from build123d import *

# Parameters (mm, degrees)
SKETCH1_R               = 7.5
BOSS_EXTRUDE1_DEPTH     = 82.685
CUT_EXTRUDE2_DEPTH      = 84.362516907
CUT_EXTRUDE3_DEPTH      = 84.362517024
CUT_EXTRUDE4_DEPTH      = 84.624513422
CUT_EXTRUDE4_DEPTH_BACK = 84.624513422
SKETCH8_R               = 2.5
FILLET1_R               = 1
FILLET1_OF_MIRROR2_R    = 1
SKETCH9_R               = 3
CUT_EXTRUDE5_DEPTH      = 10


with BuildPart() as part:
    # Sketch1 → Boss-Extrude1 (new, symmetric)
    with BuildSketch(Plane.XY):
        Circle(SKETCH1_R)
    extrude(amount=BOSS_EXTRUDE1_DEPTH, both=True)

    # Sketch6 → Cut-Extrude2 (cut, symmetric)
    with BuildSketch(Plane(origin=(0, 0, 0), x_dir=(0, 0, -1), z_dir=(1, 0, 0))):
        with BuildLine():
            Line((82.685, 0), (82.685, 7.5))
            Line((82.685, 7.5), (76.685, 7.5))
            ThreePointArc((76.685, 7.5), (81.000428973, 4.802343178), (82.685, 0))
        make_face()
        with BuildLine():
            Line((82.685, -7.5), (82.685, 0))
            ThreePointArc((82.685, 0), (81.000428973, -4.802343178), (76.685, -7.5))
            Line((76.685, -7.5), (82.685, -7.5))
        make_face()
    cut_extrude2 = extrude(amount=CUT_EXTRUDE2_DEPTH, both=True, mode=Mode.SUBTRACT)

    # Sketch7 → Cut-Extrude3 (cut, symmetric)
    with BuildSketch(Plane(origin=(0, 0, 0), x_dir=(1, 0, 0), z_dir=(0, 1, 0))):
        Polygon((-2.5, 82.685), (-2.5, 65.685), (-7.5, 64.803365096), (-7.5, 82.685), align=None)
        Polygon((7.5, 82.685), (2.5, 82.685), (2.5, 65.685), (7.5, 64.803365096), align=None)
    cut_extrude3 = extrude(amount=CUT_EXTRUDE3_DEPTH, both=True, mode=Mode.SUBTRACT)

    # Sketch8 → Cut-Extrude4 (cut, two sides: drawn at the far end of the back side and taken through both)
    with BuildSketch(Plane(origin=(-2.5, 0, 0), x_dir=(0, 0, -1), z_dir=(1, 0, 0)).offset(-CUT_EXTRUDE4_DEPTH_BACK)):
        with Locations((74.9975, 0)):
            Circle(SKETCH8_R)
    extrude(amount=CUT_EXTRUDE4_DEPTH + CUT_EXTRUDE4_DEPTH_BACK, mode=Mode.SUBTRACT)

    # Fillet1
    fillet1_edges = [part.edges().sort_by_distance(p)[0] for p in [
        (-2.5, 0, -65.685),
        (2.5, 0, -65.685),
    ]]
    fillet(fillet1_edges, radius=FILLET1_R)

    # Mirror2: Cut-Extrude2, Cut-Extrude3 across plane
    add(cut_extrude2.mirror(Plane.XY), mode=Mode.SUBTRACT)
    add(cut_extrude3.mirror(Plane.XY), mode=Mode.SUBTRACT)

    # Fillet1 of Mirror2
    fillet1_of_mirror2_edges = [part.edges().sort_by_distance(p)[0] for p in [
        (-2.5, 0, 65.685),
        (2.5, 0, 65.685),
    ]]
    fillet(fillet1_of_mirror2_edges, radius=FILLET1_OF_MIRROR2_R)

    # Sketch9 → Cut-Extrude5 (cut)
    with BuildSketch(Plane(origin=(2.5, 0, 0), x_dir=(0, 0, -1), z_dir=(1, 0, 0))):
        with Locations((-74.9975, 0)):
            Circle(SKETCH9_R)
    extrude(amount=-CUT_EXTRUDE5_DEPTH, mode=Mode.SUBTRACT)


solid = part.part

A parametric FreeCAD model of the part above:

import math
import FreeCAD as App
import Part
import Sketcher
from FreeCAD import Vector
Q = App.Units.Quantity


def edges_at(feature, points):
    """Names of the edges that pass closest to the given points."""
    edges = feature.Shape.Edges
    near = lambda p: min(range(len(edges)), key=lambda i: edges[i].distToShape(Part.Vertex(*p))[0])
    return sorted({f"Edge{near(p) + 1}" for p in points})

doc = App.newDocument("Part")
body = doc.addObject("PartDesign::Body", "Body")

sketch1 = body.newObject("Sketcher::SketchObject", "Sketch")
sketch1.AttachmentSupport = (doc.getObject("XY_Plane"), [""])
sketch1.MapMode = "FlatFace"
sketch1.addGeometry(Part.Circle(Vector(0, 0, 0), Vector(0, 0, 1), 7.5), False)
sketch1.addConstraint([
    Sketcher.Constraint("Coincident", 0, 3, -1, 1),
    Sketcher.Constraint("Diameter", 0, 15.0),
])
pad1 = body.newObject("PartDesign::Pad", "Pad")
pad1.Profile = sketch1
pad1.Length = 165.37
pad1.Midplane = True

sketch2 = body.newObject("Sketcher::SketchObject", "Sketch001")
sketch2.AttachmentSupport = (doc.getObject("YZ_Plane"), [""])
sketch2.MapMode = "FlatFace"
sketch2.addGeometry([
    Part.LineSegment(Vector(0, -82.685, 0), Vector(7.5, -82.685, 0)),
    Part.LineSegment(Vector(7.5, -82.685, 0), Vector(7.5, -76.685, 0)),
    Part.ArcOfCircle(Part.Circle(Vector(0, -74.9975, 0), Vector(0, 0, 1), 7.6875), math.radians(-90), math.radians(-12.680383)),
    Part.LineSegment(Vector(-7.5, -82.685, 0), Vector(0, -82.685, 0)),
    Part.ArcOfCircle(Part.Circle(Vector(0, -74.9975, 0), Vector(0, 0, 1), 7.6875), math.radians(-167.319617), math.radians(-90)),
    Part.LineSegment(Vector(-7.5, -76.685, 0), Vector(-7.5, -82.685, 0)),
], False)
sketch2.addConstraint([
    Sketcher.Constraint("Coincident", 0, 2, 1, 1),
    Sketcher.Constraint("Coincident", 1, 2, 2, 2),
    Sketcher.Constraint("Tangent", 2, 1, 0, 1),
    Sketcher.Constraint("Tangent", 3, 2, 4, 2),
    Sketcher.Constraint("Coincident", 4, 1, 5, 1),
    Sketcher.Constraint("Coincident", 5, 2, 3, 1),
    Sketcher.Constraint("Horizontal", 0),
    Sketcher.Constraint("Vertical", 1),
    Sketcher.Constraint("Horizontal", 3),
    Sketcher.Constraint("Vertical", 5),
    Sketcher.Constraint("Coincident", 4, 3, 2, 3),
    Sketcher.Constraint("Equal", 2, 4),
    Sketcher.Constraint("Symmetric", 1, 2, 4, 1, -2),
    Sketcher.Constraint("DistanceY", 1, 1, 1, 2, 6.0),
    Sketcher.Constraint("DistanceX", 0, 1, 0, 2, 7.5),
    Sketcher.Constraint("DistanceY", 0, 2, -1, 1, 82.685),
])
pocket1 = body.newObject("PartDesign::Pocket", "Pocket")
pocket1.Profile = sketch2
pocket1.Length = 168.725034
pocket1.Midplane = True

sketch3 = body.newObject("Sketcher::SketchObject", "Sketch002")
sketch3.AttachmentSupport = (doc.getObject("XZ_Plane"), [""])
sketch3.MapMode = "FlatFace"
sketch3.addGeometry([
    Part.LineSegment(Vector(-2.5, -65.685, 0), Vector(-2.5, -82.685, 0)),
    Part.LineSegment(Vector(-2.5, -82.685, 0), Vector(-7.5, -82.685, 0)),
    Part.LineSegment(Vector(-7.5, -82.685, 0), Vector(-7.5, -64.803365, 0)),
    Part.LineSegment(Vector(-7.5, -64.803365, 0), Vector(-2.5, -65.685, 0)),
    Part.LineSegment(Vector(7.5, -82.685, 0), Vector(2.5, -82.685, 0)),
    Part.LineSegment(Vector(2.5, -82.685, 0), Vector(2.5, -65.685, 0)),
    Part.LineSegment(Vector(2.5, -65.685, 0), Vector(7.5, -64.803365, 0)),
    Part.LineSegment(Vector(7.5, -64.803365, 0), Vector(7.5, -82.685, 0)),
], False)
sketch3.addConstraint([
    Sketcher.Constraint("Coincident", 0, 2, 1, 1),
    Sketcher.Constraint("Coincident", 1, 2, 2, 1),
    Sketcher.Constraint("Coincident", 2, 2, 3, 1),
    Sketcher.Constraint("Coincident", 3, 2, 0, 1),
    Sketcher.Constraint("Coincident", 4, 2, 5, 1),
    Sketcher.Constraint("Coincident", 5, 2, 6, 1),
    Sketcher.Constraint("Coincident", 6, 2, 7, 1),
    Sketcher.Constraint("Coincident", 7, 2, 4, 1),
    Sketcher.Constraint("Vertical", 0),
    Sketcher.Constraint("Horizontal", 1),
    Sketcher.Constraint("Vertical", 2),
    Sketcher.Constraint("Horizontal", 4),
    Sketcher.Constraint("Vertical", 5),
    Sketcher.Constraint("Vertical", 7),
    Sketcher.Constraint("Symmetric", 0, 2, 4, 2, -2),
    Sketcher.Constraint("Symmetric", 2, 2, 6, 2, -2),
    Sketcher.Constraint("Horizontal", 3, 2, 5, 2),
    Sketcher.Constraint("DistanceX", 1, 2, 1, 1, 5.0),
    Sketcher.Constraint("DistanceY", 0, 2, 0, 1, 17.0),
    Sketcher.Constraint("Angle", 3, Q("-10 deg")),
    Sketcher.Constraint("DistanceX", 0, 2, 4, 2, 5.0),
    Sketcher.Constraint("DistanceY", 0, 2, -1, 1, 82.685),
])
pocket2 = body.newObject("PartDesign::Pocket", "Pocket001")
pocket2.Profile = sketch3
pocket2.Length = 168.725034
pocket2.Midplane = True

sketch4 = body.newObject("Sketcher::SketchObject", "Sketch003")
sketch4.AttachmentSupport = (doc.getObject("YZ_Plane"), [""])
sketch4.MapMode = "FlatFace"
sketch4.AttachmentOffset = App.Placement(Vector(0, 0, -2.5), App.Rotation())
sketch4.addGeometry(Part.Circle(Vector(0, -74.9975, 0), Vector(0, 0, 1), 2.5), False)
sketch4.addConstraint([
    Sketcher.Constraint("PointOnObject", 0, 3, -2),
    Sketcher.Constraint("Diameter", 0, 5.0),
    Sketcher.Constraint("DistanceY", 0, 3, -1, 1, 74.9975),
])
pocket3 = body.newObject("PartDesign::Pocket", "Pocket002")
pocket3.Profile = sketch4
pocket3.Type = "ThroughAll"
pocket3.Midplane = True
doc.recompute()

fillet = body.newObject("PartDesign::Fillet", "Fillet")
fillet.Base = (pocket3, edges_at(pocket3, [(-2.5, 0, -65.685), (2.5, 0, -65.685)]))
fillet.Radius = 1
doc.recompute()

mirrored = body.newObject("PartDesign::Mirrored", "Mirrored")
mirrored.Originals = [pocket1, pocket2]
mirrored.MirrorPlane = (doc.getObject("XY_Plane"), [""])
body.Tip = mirrored
doc.recompute()

fillet2 = body.newObject("PartDesign::Fillet", "Fillet001")
fillet2.Base = (mirrored, edges_at(mirrored, [(-2.5, 0, 65.685), (2.5, 0, 65.685)]))
fillet2.Radius = 1

sketch5 = body.newObject("Sketcher::SketchObject", "Sketch004")
sketch5.AttachmentSupport = (doc.getObject("YZ_Plane"), [""])
sketch5.MapMode = "FlatFace"
sketch5.AttachmentOffset = App.Placement(Vector(0, 0, 2.5), App.Rotation())
sketch5.addGeometry(Part.Circle(Vector(0, 74.9975, 0), Vector(0, 0, 1), 3), False)
sketch5.addConstraint([
    Sketcher.Constraint("PointOnObject", 0, 3, -2),
    Sketcher.Constraint("Diameter", 0, 6.0),
    Sketcher.Constraint("DistanceY", -1, 1, 0, 3, 74.9975),
])
pocket4 = body.newObject("PartDesign::Pocket", "Pocket003")
pocket4.Profile = sketch5
pocket4.Length = 10

doc.recompute()
